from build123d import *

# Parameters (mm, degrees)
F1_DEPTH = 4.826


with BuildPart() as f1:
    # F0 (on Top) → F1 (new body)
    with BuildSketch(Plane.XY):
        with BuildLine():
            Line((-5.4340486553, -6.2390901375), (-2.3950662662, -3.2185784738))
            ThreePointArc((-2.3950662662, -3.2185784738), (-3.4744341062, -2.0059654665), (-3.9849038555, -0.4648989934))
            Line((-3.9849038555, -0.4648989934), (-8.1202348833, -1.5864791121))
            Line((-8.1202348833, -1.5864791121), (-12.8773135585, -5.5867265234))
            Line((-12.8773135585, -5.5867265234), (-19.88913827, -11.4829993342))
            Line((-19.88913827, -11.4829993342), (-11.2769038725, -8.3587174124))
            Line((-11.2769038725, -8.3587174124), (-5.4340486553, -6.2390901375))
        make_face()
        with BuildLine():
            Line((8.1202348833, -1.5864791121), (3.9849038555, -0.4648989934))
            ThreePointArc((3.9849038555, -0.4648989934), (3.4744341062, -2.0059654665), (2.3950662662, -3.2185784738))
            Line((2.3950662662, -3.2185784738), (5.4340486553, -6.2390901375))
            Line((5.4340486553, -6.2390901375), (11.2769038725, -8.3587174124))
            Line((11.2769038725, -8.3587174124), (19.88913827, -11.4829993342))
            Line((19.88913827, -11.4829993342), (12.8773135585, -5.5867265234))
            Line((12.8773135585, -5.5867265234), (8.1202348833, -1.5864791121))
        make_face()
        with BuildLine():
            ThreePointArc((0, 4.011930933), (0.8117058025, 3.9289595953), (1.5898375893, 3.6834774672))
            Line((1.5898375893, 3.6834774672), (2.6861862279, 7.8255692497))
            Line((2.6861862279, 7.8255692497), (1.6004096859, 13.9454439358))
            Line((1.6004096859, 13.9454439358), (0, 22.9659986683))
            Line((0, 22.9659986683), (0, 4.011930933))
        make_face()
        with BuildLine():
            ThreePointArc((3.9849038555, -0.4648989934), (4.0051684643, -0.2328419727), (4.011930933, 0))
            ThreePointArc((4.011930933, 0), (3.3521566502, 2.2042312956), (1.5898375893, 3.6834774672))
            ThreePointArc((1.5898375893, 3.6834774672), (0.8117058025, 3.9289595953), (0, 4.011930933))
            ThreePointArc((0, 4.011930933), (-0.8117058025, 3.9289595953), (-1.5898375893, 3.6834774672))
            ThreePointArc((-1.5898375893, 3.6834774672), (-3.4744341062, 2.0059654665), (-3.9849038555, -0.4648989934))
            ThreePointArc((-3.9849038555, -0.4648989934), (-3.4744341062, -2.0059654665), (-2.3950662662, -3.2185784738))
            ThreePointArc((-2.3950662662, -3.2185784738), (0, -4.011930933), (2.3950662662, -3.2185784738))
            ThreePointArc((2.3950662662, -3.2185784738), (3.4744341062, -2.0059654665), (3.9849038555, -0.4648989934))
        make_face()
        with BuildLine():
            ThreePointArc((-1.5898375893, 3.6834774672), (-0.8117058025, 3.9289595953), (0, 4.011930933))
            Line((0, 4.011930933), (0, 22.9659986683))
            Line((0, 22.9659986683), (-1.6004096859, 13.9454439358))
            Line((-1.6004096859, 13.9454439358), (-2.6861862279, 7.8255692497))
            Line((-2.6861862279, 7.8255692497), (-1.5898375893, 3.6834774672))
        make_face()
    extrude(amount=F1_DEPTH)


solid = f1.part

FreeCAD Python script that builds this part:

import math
import FreeCAD as App
import Part
import Sketcher

V = App.Vector
Q = App.Units.Quantity

doc = App.newDocument("Part")
body = doc.addObject("PartDesign::Body", "Body")

# Sketch on XY plane
sketch1 = body.newObject("Sketcher::SketchObject", "Sketch")
sketch1.AttachmentSupport = (doc.getObject("XY_Plane"), [""])
sketch1.MapMode = "FlatFace"
sketch1.addGeometry(Part.LineSegment(V(-5.43, -6.24, 0), V(-2.4, -3.22, 0)), False)
sketch1.addGeometry(Part.ArcOfCircle(Part.Circle(V(0, 0, 0), V(0, 0, 1), 4.01), math.radians(-127), math.radians(-53)), False)
sketch1.addGeometry(Part.LineSegment(V(2.4, -3.22, 0), V(5.43, -6.24, 0)), False)
sketch1.addGeometry(Part.LineSegment(V(5.43, -6.24, 0), V(19.89, -11.48, 0)), False)
sketch1.addGeometry(Part.LineSegment(V(19.89, -11.48, 0), V(12.88, -5.59, 0)), False)
sketch1.addGeometry(Part.LineSegment(V(12.88, -5.59, 0), V(8.12, -1.59, 0)), False)
sketch1.addGeometry(Part.LineSegment(V(8.12, -1.59, 0), V(3.98, -0.46, 0)), False)
sketch1.addGeometry(Part.ArcOfCircle(Part.Circle(V(0, 0, 0), V(0, 0, 1), 4.01), math.radians(-6.65), math.radians(0)), False)
sketch1.addGeometry(Part.ArcOfCircle(Part.Circle(V(0, 0, 0), V(0, 0, 1), 4.01), math.radians(0), math.radians(67)), False)
sketch1.addGeometry(Part.LineSegment(V(1.59, 3.68, 0), V(2.69, 7.83, 0)), False)
sketch1.addGeometry(Part.LineSegment(V(2.69, 7.83, 0), V(1.6, 13.95, 0)), False)
sketch1.addGeometry(Part.LineSegment(V(1.6, 13.95, 0), V(0, 22.97, 0)), False)
sketch1.addGeometry(Part.LineSegment(V(0, 22.97, 0), V(-1.6, 13.95, 0)), False)
sketch1.addGeometry(Part.LineSegment(V(-1.6, 13.95, 0), V(-2.69, 7.83, 0)), False)
sketch1.addGeometry(Part.LineSegment(V(-2.69, 7.83, 0), V(-1.59, 3.68, 0)), False)
sketch1.addGeometry(Part.ArcOfCircle(Part.Circle(V(0, 0, 0), V(0, 0, 1), 4.01), math.radians(113), math.radians(187)), False)
sketch1.addGeometry(Part.LineSegment(V(-3.98, -0.46, 0), V(-8.12, -1.59, 0)), False)
sketch1.addGeometry(Part.LineSegment(V(-8.12, -1.59, 0), V(-12.88, -5.59, 0)), False)
sketch1.addGeometry(Part.LineSegment(V(-12.88, -5.59, 0), V(-19.89, -11.48, 0)), False)
sketch1.addGeometry(Part.LineSegment(V(-19.89, -11.48, 0), V(-5.43, -6.24, 0)), False)
sketch1.addConstraint(Sketcher.Constraint("Coincident", 0, 2, 1, 1))
sketch1.addConstraint(Sketcher.Constraint("Coincident", 1, 2, 2, 1))
sketch1.addConstraint(Sketcher.Constraint("Coincident", 2, 2, 3, 1))
sketch1.addConstraint(Sketcher.Constraint("Coincident", 3, 2, 4, 1))
sketch1.addConstraint(Sketcher.Constraint("Coincident", 4, 2, 5, 1))
sketch1.addConstraint(Sketcher.Constraint("Coincident", 5, 2, 6, 1))
sketch1.addConstraint(Sketcher.Constraint("Coincident", 6, 2, 7, 1))
sketch1.addConstraint(Sketcher.Constraint("Tangent", 7, 2, 8, 1))
sketch1.addConstraint(Sketcher.Constraint("Coincident", 8, 2, 9, 1))
sketch1.addConstraint(Sketcher.Constraint("Coincident", 9, 2, 10, 1))
sketch1.addConstraint(Sketcher.Constraint("Coincident", 10, 2, 11, 1))
sketch1.addConstraint(Sketcher.Constraint("Coincident", 11, 2, 12, 1))
sketch1.addConstraint(Sketcher.Constraint("Coincident", 12, 2, 13, 1))
sketch1.addConstraint(Sketcher.Constraint("Coincident", 13, 2, 14, 1))
sketch1.addConstraint(Sketcher.Constraint("Coincident", 14, 2, 15, 1))
sketch1.addConstraint(Sketcher.Constraint("Coincident", 15, 2, 16, 1))
sketch1.addConstraint(Sketcher.Constraint("Coincident", 16, 2, 17, 1))
sketch1.addConstraint(Sketcher.Constraint("Coincident", 17, 2, 18, 1))
sketch1.addConstraint(Sketcher.Constraint("Coincident", 18, 2, 19, 1))
sketch1.addConstraint(Sketcher.Constraint("Coincident", 19, 2, 0, 1))
sketch1.addConstraint(Sketcher.Constraint("Coincident", 1, 3, -1, 1))
sketch1.addConstraint(Sketcher.Constraint("Coincident", 7, 3, -1, 1))
sketch1.addConstraint(Sketcher.Constraint("Coincident", 15, 3, -1, 1))
sketch1.addConstraint(Sketcher.Constraint("Equal", 1, 7))
sketch1.addConstraint(Sketcher.Constraint("Equal", 7, 8))
sketch1.addConstraint(Sketcher.Constraint("Equal", 8, 15))
sketch1.addConstraint(Sketcher.Constraint("Symmetric", 10, 2, 12, 2, -2))
sketch1.addConstraint(Sketcher.Constraint("Symmetric", 9, 2, 13, 2, -2))
sketch1.addConstraint(Sketcher.Constraint("Symmetric", 5, 2, 16, 2, -2))
sketch1.addConstraint(Sketcher.Constraint("Symmetric", 4, 2, 17, 2, -2))
sketch1.addConstraint(Sketcher.Constraint("Symmetric", 3, 2, 18, 2, -2))
sketch1.addConstraint(Sketcher.Constraint("Symmetric", 2, 2, 19, 2, -2))
sketch1.addConstraint(Sketcher.Constraint("PointOnObject", 7, 2, -1))
sketch1.addConstraint(Sketcher.Constraint("PointOnObject", 11, 2, -2))
sketch1.addConstraint(Sketcher.Constraint("Parallel", 4, 5))
sketch1.addConstraint(Sketcher.Constraint("Parallel", 10, 11))
sketch1.addConstraint(Sketcher.Constraint("Horizontal", 0, 2, 1, 2))
sketch1.addConstraint(Sketcher.Constraint("Horizontal", 8, 2, 14, 2))
sketch1.addConstraint(Sketcher.Constraint("Horizontal", 6, 2, 15, 2))
sketch1.addConstraint(Sketcher.Constraint("Equal", 2, 6))
sketch1.addConstraint(Sketcher.Constraint("Equal", 6, 9))
sketch1.addConstraint(Sketcher.Constraint("Equal", 5, 10))
sketch1.addConstraint(Sketcher.Constraint("Equal", 4, 11))
sketch1.addConstraint(Sketcher.Constraint("Radius", 1, 4.011931))
sketch1.addConstraint(Sketcher.Constraint("DistanceY", 3, 2, -1, 1, 11.482999))
sketch1.addConstraint(Sketcher.Constraint("DistanceY", 6, 2, -1, 1, 0.464899))
sketch1.addConstraint(Sketcher.Constraint("DistanceY", -1, 1, 11, 2, 22.965999))
sketch1.addConstraint(Sketcher.Constraint("DistanceY", 1, 2, 5, 2, 1.632099))
sketch1.addConstraint(Sketcher.Constraint("Distance", 0, 4.284729))
sketch1.addConstraint(Sketcher.Constraint("DistanceY", 0, 2, -1, 1, 3.218578))
sketch1.addConstraint(Sketcher.Constraint("DistanceX", -1, 1, 2, 2, 5.434049))
sketch1.addConstraint(Sketcher.Constraint("DistanceX", -1, 1, 3, 2, 19.889138))
sketch1.addConstraint(Sketcher.Constraint("DistanceY", -1, 1, 9, 2, 7.825569))
sketch1.addConstraint(Sketcher.Constraint("DistanceX", -1, 1, 10, 2, 1.60041))
pad1 = body.newObject("PartDesign::Pad", "Pad")
pad1.Profile = sketch1
pad1.Length = Q("0.19 in")

doc.recompute()
